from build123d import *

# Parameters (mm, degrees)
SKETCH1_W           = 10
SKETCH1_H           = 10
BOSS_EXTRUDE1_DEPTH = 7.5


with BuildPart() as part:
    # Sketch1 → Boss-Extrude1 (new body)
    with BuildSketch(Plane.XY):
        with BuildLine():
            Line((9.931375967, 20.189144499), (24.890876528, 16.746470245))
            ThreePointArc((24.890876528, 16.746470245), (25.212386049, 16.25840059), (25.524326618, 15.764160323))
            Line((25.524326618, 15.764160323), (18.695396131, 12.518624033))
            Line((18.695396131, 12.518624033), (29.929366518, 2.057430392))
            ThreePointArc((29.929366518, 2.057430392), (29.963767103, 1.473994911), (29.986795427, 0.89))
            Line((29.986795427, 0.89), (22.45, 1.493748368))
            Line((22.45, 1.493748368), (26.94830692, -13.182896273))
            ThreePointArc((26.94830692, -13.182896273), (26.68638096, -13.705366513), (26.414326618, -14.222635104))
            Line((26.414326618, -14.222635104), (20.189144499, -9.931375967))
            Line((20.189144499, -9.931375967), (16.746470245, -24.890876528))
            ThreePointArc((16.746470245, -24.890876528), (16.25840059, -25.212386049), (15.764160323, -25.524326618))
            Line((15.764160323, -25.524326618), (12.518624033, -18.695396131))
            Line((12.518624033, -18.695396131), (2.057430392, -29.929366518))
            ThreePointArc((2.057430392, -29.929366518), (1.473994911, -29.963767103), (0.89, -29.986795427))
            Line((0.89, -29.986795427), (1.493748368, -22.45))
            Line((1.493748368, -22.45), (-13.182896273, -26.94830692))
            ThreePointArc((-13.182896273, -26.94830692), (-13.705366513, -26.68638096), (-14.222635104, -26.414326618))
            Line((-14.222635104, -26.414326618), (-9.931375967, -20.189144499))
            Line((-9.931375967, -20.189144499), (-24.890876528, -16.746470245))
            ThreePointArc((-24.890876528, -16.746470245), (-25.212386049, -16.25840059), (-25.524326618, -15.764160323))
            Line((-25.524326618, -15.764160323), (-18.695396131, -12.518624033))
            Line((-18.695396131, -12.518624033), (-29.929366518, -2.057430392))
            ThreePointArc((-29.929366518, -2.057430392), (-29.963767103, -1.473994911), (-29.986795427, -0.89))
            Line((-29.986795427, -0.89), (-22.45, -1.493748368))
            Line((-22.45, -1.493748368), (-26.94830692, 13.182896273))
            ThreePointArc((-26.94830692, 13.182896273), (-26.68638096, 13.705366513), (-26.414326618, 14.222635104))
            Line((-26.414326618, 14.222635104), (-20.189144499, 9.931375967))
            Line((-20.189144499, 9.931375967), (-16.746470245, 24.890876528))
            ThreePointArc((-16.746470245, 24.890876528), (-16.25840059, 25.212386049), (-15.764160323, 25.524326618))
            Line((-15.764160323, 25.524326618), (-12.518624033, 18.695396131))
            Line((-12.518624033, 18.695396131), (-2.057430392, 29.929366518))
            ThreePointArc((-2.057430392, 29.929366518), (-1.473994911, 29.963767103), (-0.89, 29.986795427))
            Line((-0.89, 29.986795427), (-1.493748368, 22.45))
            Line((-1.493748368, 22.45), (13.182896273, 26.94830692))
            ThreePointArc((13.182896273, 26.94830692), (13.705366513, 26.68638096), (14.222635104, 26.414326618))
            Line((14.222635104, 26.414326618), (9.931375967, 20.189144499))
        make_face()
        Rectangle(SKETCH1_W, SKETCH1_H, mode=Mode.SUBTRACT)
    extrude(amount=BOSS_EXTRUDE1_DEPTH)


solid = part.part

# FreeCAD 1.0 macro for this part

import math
import FreeCAD as App
import Part
import Sketcher

V = App.Vector
Q = App.Units.Quantity

doc = App.newDocument("Part")
body = doc.addObject("PartDesign::Body", "Body")

# Sketch on XY plane
sketch1 = body.newObject("Sketcher::SketchObject", "Sketch")
sketch1.AttachmentSupport = (doc.getObject("XY_Plane"), [""])
sketch1.MapMode = "FlatFace"
sketch1.addGeometry(Part.LineSegment(V(24.9, 16.7, 0), V(9.9, 20.2, 0)), False)
sketch1.addGeometry(Part.LineSegment(V(9.9, 20.2, 0), V(14.2, 26.4, 0)), False)
sketch1.addGeometry(Part.ArcOfCircle(Part.Circle(V(0, 0, 0), V(0, 0, 1), 30), math.radians(61.7), math.radians(63.93)), False)
sketch1.addGeometry(Part.LineSegment(V(13.2, 26.9, 0), V(-1.5, 22.4, 0)), False)
sketch1.addGeometry(Part.LineSegment(V(-1.5, 22.4, 0), V(-0.9, 30, 0)), False)
sketch1.addGeometry(Part.ArcOfCircle(Part.Circle(V(0, 0, 0), V(0, 0, 1), 30), math.radians(91.7), math.radians(93.93)), False)
sketch1.addGeometry(Part.LineSegment(V(-2.1, 29.9, 0), V(-12.5, 18.7, 0)), False)
sketch1.addGeometry(Part.LineSegment(V(-12.5, 18.7, 0), V(-15.8, 25.5, 0)), False)
sketch1.addGeometry(Part.ArcOfCircle(Part.Circle(V(0, 0, 0), V(0, 0, 1), 30), math.radians(121.7), math.radians(123.93)), False)
sketch1.addGeometry(Part.LineSegment(V(-16.7, 24.9, 0), V(-20.2, 9.9, 0)), False)
sketch1.addGeometry(Part.LineSegment(V(-20.2, 9.9, 0), V(-26.4, 14.2, 0)), False)
sketch1.addGeometry(Part.ArcOfCircle(Part.Circle(V(0, 0, 0), V(0, 0, 1), 30), math.radians(151.7), math.radians(153.93)), False)
sketch1.addGeometry(Part.LineSegment(V(-26.9, 13.2, 0), V(-22.4, -1.5, 0)), False)
sketch1.addGeometry(Part.LineSegment(V(-22.4, -1.5, 0), V(-30, -0.9, 0)), False)
sketch1.addGeometry(Part.ArcOfCircle(Part.Circle(V(0, 0, 0), V(0, 0, 1), 30), math.radians(-178.3), math.radians(-176.07)), False)
sketch1.addGeometry(Part.LineSegment(V(-29.9, -2.1, 0), V(-18.7, -12.5, 0)), False)
sketch1.addGeometry(Part.LineSegment(V(-18.7, -12.5, 0), V(-25.5, -15.8, 0)), False)
sketch1.addGeometry(Part.ArcOfCircle(Part.Circle(V(0, 0, 0), V(0, 0, 1), 30), math.radians(-148.3), math.radians(-146.07)), False)
sketch1.addGeometry(Part.LineSegment(V(-24.9, -16.7, 0), V(-9.9, -20.2, 0)), False)
sketch1.addGeometry(Part.LineSegment(V(-9.9, -20.2, 0), V(-14.2, -26.4, 0)), False)
sketch1.addGeometry(Part.ArcOfCircle(Part.Circle(V(0, 0, 0), V(0, 0, 1), 30), math.radians(-118.3), math.radians(-116.07)), False)
sketch1.addGeometry(Part.LineSegment(V(-13.2, -26.9, 0), V(1.5, -22.4, 0)), False)
sketch1.addGeometry(Part.LineSegment(V(1.5, -22.4, 0), V(0.9, -30, 0)), False)
sketch1.addGeometry(Part.ArcOfCircle(Part.Circle(V(0, 0, 0), V(0, 0, 1), 30), math.radians(-88.3), math.radians(-86.07)), False)
sketch1.addGeometry(Part.LineSegment(V(2.1, -29.9, 0), V(12.5, -18.7, 0)), False)
sketch1.addGeometry(Part.LineSegment(V(12.5, -18.7, 0), V(15.8, -25.5, 0)), False)
sketch1.addGeometry(Part.ArcOfCircle(Part.Circle(V(0, 0, 0), V(0, 0, 1), 30), math.radians(-58.3), math.radians(-56.07)), False)
sketch1.addGeometry(Part.LineSegment(V(16.7, -24.9, 0), V(20.2, -9.9, 0)), False)
sketch1.addGeometry(Part.LineSegment(V(20.2, -9.9, 0), V(26.4, -14.2, 0)), False)
sketch1.addGeometry(Part.ArcOfCircle(Part.Circle(V(0, 0, 0), V(0, 0, 1), 30), math.radians(-28.3), math.radians(-26.07)), False)
sketch1.addGeometry(Part.LineSegment(V(26.9, -13.2, 0), V(22.4, 1.5, 0)), False)
sketch1.addGeometry(Part.LineSegment(V(22.4, 1.5, 0), V(30, 0.9, 0)), False)
sketch1.addGeometry(Part.ArcOfCircle(Part.Circle(V(0, 0, 0), V(0, 0, 1), 30), math.radians(1.7), math.radians(3.93)), False)
sketch1.addGeometry(Part.LineSegment(V(29.9, 2.1, 0), V(18.7, 12.5, 0)), False)
sketch1.addGeometry(Part.LineSegment(V(18.7, 12.5, 0), V(25.5, 15.8, 0)), False)
sketch1.addGeometry(Part.ArcOfCircle(Part.Circle(V(0, 0, 0), V(0, 0, 1), 30), math.radians(31.7), math.radians(33.93)), False)
sketch1.addGeometry(Part.LineSegment(V(-5, -5, 0), V(-5, 5, 0)), False)
sketch1.addGeometry(Part.LineSegment(V(-5, 5, 0), V(5, 5, 0)), False)
sketch1.addGeometry(Part.LineSegment(V(5, 5, 0), V(5, -5, 0)), False)
sketch1.addGeometry(Part.LineSegment(V(5, -5, 0), V(-5, -5, 0)), False)
sketch1.addConstraint(Sketcher.Constraint("Coincident", 0, 2, 1, 1))
sketch1.addConstraint(Sketcher.Constraint("Coincident", 1, 2, 2, 1))
sketch1.addConstraint(Sketcher.Constraint("Coincident", 2, 2, 3, 1))
sketch1.addConstraint(Sketcher.Constraint("Coincident", 3, 2, 4, 1))
sketch1.addConstraint(Sketcher.Constraint("Coincident", 4, 2, 5, 1))
sketch1.addConstraint(Sketcher.Constraint("Coincident", 5, 2, 6, 1))
sketch1.addConstraint(Sketcher.Constraint("Coincident", 6, 2, 7, 1))
sketch1.addConstraint(Sketcher.Constraint("Coincident", 7, 2, 8, 1))
sketch1.addConstraint(Sketcher.Constraint("Coincident", 8, 2, 9, 1))
sketch1.addConstraint(Sketcher.Constraint("Coincident", 9, 2, 10, 1))
sketch1.addConstraint(Sketcher.Constraint("Coincident", 10, 2, 11, 1))
sketch1.addConstraint(Sketcher.Constraint("Coincident", 11, 2, 12, 1))
sketch1.addConstraint(Sketcher.Constraint("Coincident", 12, 2, 13, 1))
sketch1.addConstraint(Sketcher.Constraint("Coincident", 13, 2, 14, 1))
sketch1.addConstraint(Sketcher.Constraint("Coincident", 14, 2, 15, 1))
sketch1.addConstraint(Sketcher.Constraint("Coincident", 15, 2, 16, 1))
sketch1.addConstraint(Sketcher.Constraint("Coincident", 16, 2, 17, 1))
sketch1.addConstraint(Sketcher.Constraint("Coincident", 17, 2, 18, 1))
sketch1.addConstraint(Sketcher.Constraint("Coincident", 18, 2, 19, 1))
sketch1.addConstraint(Sketcher.Constraint("Coincident", 19, 2, 20, 1))
sketch1.addConstraint(Sketcher.Constraint("Coincident", 20, 2, 21, 1))
sketch1.addConstraint(Sketcher.Constraint("Coincident", 21, 2, 22, 1))
sketch1.addConstraint(Sketcher.Constraint("Coincident", 22, 2, 23, 1))
sketch1.addConstraint(Sketcher.Constraint("Coincident", 23, 2, 24, 1))
sketch1.addConstraint(Sketcher.Constraint("Coincident", 24, 2, 25, 1))
sketch1.addConstraint(Sketcher.Constraint("Coincident", 25, 2, 26, 1))
sketch1.addConstraint(Sketcher.Constraint("Coincident", 26, 2, 27, 1))
sketch1.addConstraint(Sketcher.Constraint("Coincident", 27, 2, 28, 1))
sketch1.addConstraint(Sketcher.Constraint("Coincident", 28, 2, 29, 1))
sketch1.addConstraint(Sketcher.Constraint("Coincident", 29, 2, 30, 1))
sketch1.addConstraint(Sketcher.Constraint("Coincident", 30, 2, 31, 1))
sketch1.addConstraint(Sketcher.Constraint("Coincident", 31, 2, 32, 1))
sketch1.addConstraint(Sketcher.Constraint("Coincident", 32, 2, 33, 1))
sketch1.addConstraint(Sketcher.Constraint("Coincident", 33, 2, 34, 1))
sketch1.addConstraint(Sketcher.Constraint("Coincident", 34, 2, 35, 1))
sketch1.addConstraint(Sketcher.Constraint("Coincident", 35, 2, 0, 1))
sketch1.addConstraint(Sketcher.Constraint("Coincident", 36, 2, 37, 1))
sketch1.addConstraint(Sketcher.Constraint("Coincident", 37, 2, 38, 1))
sketch1.addConstraint(Sketcher.Constraint("Coincident", 38, 2, 39, 1))
sketch1.addConstraint(Sketcher.Constraint("Coincident", 39, 2, 36, 1))
sketch1.addConstraint(Sketcher.Constraint("Vertical", 36))
sketch1.addConstraint(Sketcher.Constraint("Horizontal", 37))
sketch1.addConstraint(Sketcher.Constraint("Vertical", 38))
sketch1.addConstraint(Sketcher.Constraint("Horizontal", 39))
sketch1.addConstraint(Sketcher.Constraint("Coincident", 2, 3, -1, 1))
sketch1.addConstraint(Sketcher.Constraint("Coincident", 5, 3, -1, 1))
sketch1.addConstraint(Sketcher.Constraint("Coincident", 8, 3, -1, 1))
sketch1.addConstraint(Sketcher.Constraint("Coincident", 11, 3, -1, 1))
sketch1.addConstraint(Sketcher.Constraint("Coincident", 14, 3, -1, 1))
sketch1.addConstraint(Sketcher.Constraint("Coincident", 17, 3, -1, 1))
sketch1.addConstraint(Sketcher.Constraint("Coincident", 20, 3, -1, 1))
sketch1.addConstraint(Sketcher.Constraint("Coincident", 23, 3, -1, 1))
sketch1.addConstraint(Sketcher.Constraint("Coincident", 26, 3, -1, 1))
sketch1.addConstraint(Sketcher.Constraint("Coincident", 29, 3, -1, 1))
sketch1.addConstraint(Sketcher.Constraint("Coincident", 32, 3, -1, 1))
sketch1.addConstraint(Sketcher.Constraint("Coincident", 35, 3, -1, 1))
sketch1.addConstraint(Sketcher.Constraint("Equal", 2, 5))
sketch1.addConstraint(Sketcher.Constraint("Equal", 5, 8))
sketch1.addConstraint(Sketcher.Constraint("Equal", 5, 11))
sketch1.addConstraint(Sketcher.Constraint("Equal", 11, 14))
sketch1.addConstraint(Sketcher.Constraint("Equal", 14, 17))
sketch1.addConstraint(Sketcher.Constraint("Equal", 14, 20))
sketch1.addConstraint(Sketcher.Constraint("Equal", 20, 23))
sketch1.addConstraint(Sketcher.Constraint("Equal", 23, 26))
sketch1.addConstraint(Sketcher.Constraint("Equal", 23, 29))
sketch1.addConstraint(Sketcher.Constraint("Equal", 29, 32))
sketch1.addConstraint(Sketcher.Constraint("Equal", 32, 35))
sketch1.addConstraint(Sketcher.Constraint("Symmetric", 0, 2, 18, 2, -1, 1))
sketch1.addConstraint(Sketcher.Constraint("Symmetric", 3, 2, 21, 2, -1, 1))
sketch1.addConstraint(Sketcher.Constraint("Symmetric", 6, 2, 24, 2, -1, 1))
sketch1.addConstraint(Sketcher.Constraint("Symmetric", 9, 2, 27, 2, -1, 1))
sketch1.addConstraint(Sketcher.Constraint("Symmetric", 12, 2, 30, 2, -1, 1))
sketch1.addConstraint(Sketcher.Constraint("Symmetric", 15, 2, 33, 2, -1, 1))
sketch1.addConstraint(Sketcher.Constraint("Symmetric", 36, 2, 38, 2, -1, 1))
sketch1.addConstraint(Sketcher.Constraint("Perpendicular", 0, 9))
sketch1.addConstraint(Sketcher.Constraint("Perpendicular", 1, 10))
sketch1.addConstraint(Sketcher.Constraint("Perpendicular", 3, 12))
sketch1.addConstraint(Sketcher.Constraint("Perpendicular", 4, 13))
sketch1.addConstraint(Sketcher.Constraint("Perpendicular", 6, 15))
sketch1.addConstraint(Sketcher.Constraint("Perpendicular", 7, 16))
sketch1.addConstraint(Sketcher.Constraint("Perpendicular", 9, 18))
sketch1.addConstraint(Sketcher.Constraint("Perpendicular", 10, 19))
sketch1.addConstraint(Sketcher.Constraint("Perpendicular", 12, 21))
sketch1.addConstraint(Sketcher.Constraint("Perpendicular", 13, 22))
sketch1.addConstraint(Sketcher.Constraint("Perpendicular", 15, 24))
sketch1.addConstraint(Sketcher.Constraint("Perpendicular", 16, 25))
sketch1.addConstraint(Sketcher.Constraint("Perpendicular", 18, 27))
sketch1.addConstraint(Sketcher.Constraint("Perpendicular", 19, 28))
sketch1.addConstraint(Sketcher.Constraint("Perpendicular", 21, 30))
sketch1.addConstraint(Sketcher.Constraint("Perpendicular", 22, 31))
sketch1.addConstraint(Sketcher.Constraint("Perpendicular", 24, 33))
sketch1.addConstraint(Sketcher.Constraint("Perpendicular", 25, 34))
sketch1.addConstraint(Sketcher.Constraint("Equal", 39, 36))
sketch1.addConstraint(Sketcher.Constraint("Equal", 0, 3))
sketch1.addConstraint(Sketcher.Constraint("Equal", 1, 4))
sketch1.addConstraint(Sketcher.Constraint("Equal", 3, 6))
sketch1.addConstraint(Sketcher.Constraint("Equal", 4, 7))
sketch1.addConstraint(Sketcher.Constraint("Equal", 6, 9))
sketch1.addConstraint(Sketcher.Constraint("Equal", 7, 10))
sketch1.addConstraint(Sketcher.Constraint("Equal", 9, 12))
sketch1.addConstraint(Sketcher.Constraint("Equal", 10, 13))
sketch1.addConstraint(Sketcher.Constraint("Equal", 12, 15))
sketch1.addConstraint(Sketcher.Constraint("Equal", 13, 16))
sketch1.addConstraint(Sketcher.Constraint("Radius", 2, Q("29.999999 mm")))
sketch1.addConstraint(Sketcher.Constraint("DistanceX", 37, 1, 37, 2, Q("10 mm")))
sketch1.addConstraint(Sketcher.Constraint("Angle", 0, Q("167.04 deg")))
sketch1.addConstraint(Sketcher.Constraint("Angle", 1, Q("55.42 deg")))
sketch1.addConstraint(Sketcher.Constraint("Angle", 3, Q("-162.96 deg")))
sketch1.addConstraint(Sketcher.Constraint("Angle", 4, Q("85.42 deg")))
sketch1.addConstraint(Sketcher.Constraint("Angle", 6, Q("-132.96 deg")))
sketch1.addConstraint(Sketcher.Constraint("Angle", 7, Q("115.42 deg")))
sketch1.addConstraint(Sketcher.Constraint("DistanceY", -1, 1, 3, 2, Q("22.45 mm")))
sketch1.addConstraint(Sketcher.Constraint("DistanceX", 4, 2, -1, 1, Q("0.89 mm")))
pad1 = body.newObject("PartDesign::Pad", "Pad")
pad1.Profile = sketch1
pad1.Length = 7.5

doc.recompute()
